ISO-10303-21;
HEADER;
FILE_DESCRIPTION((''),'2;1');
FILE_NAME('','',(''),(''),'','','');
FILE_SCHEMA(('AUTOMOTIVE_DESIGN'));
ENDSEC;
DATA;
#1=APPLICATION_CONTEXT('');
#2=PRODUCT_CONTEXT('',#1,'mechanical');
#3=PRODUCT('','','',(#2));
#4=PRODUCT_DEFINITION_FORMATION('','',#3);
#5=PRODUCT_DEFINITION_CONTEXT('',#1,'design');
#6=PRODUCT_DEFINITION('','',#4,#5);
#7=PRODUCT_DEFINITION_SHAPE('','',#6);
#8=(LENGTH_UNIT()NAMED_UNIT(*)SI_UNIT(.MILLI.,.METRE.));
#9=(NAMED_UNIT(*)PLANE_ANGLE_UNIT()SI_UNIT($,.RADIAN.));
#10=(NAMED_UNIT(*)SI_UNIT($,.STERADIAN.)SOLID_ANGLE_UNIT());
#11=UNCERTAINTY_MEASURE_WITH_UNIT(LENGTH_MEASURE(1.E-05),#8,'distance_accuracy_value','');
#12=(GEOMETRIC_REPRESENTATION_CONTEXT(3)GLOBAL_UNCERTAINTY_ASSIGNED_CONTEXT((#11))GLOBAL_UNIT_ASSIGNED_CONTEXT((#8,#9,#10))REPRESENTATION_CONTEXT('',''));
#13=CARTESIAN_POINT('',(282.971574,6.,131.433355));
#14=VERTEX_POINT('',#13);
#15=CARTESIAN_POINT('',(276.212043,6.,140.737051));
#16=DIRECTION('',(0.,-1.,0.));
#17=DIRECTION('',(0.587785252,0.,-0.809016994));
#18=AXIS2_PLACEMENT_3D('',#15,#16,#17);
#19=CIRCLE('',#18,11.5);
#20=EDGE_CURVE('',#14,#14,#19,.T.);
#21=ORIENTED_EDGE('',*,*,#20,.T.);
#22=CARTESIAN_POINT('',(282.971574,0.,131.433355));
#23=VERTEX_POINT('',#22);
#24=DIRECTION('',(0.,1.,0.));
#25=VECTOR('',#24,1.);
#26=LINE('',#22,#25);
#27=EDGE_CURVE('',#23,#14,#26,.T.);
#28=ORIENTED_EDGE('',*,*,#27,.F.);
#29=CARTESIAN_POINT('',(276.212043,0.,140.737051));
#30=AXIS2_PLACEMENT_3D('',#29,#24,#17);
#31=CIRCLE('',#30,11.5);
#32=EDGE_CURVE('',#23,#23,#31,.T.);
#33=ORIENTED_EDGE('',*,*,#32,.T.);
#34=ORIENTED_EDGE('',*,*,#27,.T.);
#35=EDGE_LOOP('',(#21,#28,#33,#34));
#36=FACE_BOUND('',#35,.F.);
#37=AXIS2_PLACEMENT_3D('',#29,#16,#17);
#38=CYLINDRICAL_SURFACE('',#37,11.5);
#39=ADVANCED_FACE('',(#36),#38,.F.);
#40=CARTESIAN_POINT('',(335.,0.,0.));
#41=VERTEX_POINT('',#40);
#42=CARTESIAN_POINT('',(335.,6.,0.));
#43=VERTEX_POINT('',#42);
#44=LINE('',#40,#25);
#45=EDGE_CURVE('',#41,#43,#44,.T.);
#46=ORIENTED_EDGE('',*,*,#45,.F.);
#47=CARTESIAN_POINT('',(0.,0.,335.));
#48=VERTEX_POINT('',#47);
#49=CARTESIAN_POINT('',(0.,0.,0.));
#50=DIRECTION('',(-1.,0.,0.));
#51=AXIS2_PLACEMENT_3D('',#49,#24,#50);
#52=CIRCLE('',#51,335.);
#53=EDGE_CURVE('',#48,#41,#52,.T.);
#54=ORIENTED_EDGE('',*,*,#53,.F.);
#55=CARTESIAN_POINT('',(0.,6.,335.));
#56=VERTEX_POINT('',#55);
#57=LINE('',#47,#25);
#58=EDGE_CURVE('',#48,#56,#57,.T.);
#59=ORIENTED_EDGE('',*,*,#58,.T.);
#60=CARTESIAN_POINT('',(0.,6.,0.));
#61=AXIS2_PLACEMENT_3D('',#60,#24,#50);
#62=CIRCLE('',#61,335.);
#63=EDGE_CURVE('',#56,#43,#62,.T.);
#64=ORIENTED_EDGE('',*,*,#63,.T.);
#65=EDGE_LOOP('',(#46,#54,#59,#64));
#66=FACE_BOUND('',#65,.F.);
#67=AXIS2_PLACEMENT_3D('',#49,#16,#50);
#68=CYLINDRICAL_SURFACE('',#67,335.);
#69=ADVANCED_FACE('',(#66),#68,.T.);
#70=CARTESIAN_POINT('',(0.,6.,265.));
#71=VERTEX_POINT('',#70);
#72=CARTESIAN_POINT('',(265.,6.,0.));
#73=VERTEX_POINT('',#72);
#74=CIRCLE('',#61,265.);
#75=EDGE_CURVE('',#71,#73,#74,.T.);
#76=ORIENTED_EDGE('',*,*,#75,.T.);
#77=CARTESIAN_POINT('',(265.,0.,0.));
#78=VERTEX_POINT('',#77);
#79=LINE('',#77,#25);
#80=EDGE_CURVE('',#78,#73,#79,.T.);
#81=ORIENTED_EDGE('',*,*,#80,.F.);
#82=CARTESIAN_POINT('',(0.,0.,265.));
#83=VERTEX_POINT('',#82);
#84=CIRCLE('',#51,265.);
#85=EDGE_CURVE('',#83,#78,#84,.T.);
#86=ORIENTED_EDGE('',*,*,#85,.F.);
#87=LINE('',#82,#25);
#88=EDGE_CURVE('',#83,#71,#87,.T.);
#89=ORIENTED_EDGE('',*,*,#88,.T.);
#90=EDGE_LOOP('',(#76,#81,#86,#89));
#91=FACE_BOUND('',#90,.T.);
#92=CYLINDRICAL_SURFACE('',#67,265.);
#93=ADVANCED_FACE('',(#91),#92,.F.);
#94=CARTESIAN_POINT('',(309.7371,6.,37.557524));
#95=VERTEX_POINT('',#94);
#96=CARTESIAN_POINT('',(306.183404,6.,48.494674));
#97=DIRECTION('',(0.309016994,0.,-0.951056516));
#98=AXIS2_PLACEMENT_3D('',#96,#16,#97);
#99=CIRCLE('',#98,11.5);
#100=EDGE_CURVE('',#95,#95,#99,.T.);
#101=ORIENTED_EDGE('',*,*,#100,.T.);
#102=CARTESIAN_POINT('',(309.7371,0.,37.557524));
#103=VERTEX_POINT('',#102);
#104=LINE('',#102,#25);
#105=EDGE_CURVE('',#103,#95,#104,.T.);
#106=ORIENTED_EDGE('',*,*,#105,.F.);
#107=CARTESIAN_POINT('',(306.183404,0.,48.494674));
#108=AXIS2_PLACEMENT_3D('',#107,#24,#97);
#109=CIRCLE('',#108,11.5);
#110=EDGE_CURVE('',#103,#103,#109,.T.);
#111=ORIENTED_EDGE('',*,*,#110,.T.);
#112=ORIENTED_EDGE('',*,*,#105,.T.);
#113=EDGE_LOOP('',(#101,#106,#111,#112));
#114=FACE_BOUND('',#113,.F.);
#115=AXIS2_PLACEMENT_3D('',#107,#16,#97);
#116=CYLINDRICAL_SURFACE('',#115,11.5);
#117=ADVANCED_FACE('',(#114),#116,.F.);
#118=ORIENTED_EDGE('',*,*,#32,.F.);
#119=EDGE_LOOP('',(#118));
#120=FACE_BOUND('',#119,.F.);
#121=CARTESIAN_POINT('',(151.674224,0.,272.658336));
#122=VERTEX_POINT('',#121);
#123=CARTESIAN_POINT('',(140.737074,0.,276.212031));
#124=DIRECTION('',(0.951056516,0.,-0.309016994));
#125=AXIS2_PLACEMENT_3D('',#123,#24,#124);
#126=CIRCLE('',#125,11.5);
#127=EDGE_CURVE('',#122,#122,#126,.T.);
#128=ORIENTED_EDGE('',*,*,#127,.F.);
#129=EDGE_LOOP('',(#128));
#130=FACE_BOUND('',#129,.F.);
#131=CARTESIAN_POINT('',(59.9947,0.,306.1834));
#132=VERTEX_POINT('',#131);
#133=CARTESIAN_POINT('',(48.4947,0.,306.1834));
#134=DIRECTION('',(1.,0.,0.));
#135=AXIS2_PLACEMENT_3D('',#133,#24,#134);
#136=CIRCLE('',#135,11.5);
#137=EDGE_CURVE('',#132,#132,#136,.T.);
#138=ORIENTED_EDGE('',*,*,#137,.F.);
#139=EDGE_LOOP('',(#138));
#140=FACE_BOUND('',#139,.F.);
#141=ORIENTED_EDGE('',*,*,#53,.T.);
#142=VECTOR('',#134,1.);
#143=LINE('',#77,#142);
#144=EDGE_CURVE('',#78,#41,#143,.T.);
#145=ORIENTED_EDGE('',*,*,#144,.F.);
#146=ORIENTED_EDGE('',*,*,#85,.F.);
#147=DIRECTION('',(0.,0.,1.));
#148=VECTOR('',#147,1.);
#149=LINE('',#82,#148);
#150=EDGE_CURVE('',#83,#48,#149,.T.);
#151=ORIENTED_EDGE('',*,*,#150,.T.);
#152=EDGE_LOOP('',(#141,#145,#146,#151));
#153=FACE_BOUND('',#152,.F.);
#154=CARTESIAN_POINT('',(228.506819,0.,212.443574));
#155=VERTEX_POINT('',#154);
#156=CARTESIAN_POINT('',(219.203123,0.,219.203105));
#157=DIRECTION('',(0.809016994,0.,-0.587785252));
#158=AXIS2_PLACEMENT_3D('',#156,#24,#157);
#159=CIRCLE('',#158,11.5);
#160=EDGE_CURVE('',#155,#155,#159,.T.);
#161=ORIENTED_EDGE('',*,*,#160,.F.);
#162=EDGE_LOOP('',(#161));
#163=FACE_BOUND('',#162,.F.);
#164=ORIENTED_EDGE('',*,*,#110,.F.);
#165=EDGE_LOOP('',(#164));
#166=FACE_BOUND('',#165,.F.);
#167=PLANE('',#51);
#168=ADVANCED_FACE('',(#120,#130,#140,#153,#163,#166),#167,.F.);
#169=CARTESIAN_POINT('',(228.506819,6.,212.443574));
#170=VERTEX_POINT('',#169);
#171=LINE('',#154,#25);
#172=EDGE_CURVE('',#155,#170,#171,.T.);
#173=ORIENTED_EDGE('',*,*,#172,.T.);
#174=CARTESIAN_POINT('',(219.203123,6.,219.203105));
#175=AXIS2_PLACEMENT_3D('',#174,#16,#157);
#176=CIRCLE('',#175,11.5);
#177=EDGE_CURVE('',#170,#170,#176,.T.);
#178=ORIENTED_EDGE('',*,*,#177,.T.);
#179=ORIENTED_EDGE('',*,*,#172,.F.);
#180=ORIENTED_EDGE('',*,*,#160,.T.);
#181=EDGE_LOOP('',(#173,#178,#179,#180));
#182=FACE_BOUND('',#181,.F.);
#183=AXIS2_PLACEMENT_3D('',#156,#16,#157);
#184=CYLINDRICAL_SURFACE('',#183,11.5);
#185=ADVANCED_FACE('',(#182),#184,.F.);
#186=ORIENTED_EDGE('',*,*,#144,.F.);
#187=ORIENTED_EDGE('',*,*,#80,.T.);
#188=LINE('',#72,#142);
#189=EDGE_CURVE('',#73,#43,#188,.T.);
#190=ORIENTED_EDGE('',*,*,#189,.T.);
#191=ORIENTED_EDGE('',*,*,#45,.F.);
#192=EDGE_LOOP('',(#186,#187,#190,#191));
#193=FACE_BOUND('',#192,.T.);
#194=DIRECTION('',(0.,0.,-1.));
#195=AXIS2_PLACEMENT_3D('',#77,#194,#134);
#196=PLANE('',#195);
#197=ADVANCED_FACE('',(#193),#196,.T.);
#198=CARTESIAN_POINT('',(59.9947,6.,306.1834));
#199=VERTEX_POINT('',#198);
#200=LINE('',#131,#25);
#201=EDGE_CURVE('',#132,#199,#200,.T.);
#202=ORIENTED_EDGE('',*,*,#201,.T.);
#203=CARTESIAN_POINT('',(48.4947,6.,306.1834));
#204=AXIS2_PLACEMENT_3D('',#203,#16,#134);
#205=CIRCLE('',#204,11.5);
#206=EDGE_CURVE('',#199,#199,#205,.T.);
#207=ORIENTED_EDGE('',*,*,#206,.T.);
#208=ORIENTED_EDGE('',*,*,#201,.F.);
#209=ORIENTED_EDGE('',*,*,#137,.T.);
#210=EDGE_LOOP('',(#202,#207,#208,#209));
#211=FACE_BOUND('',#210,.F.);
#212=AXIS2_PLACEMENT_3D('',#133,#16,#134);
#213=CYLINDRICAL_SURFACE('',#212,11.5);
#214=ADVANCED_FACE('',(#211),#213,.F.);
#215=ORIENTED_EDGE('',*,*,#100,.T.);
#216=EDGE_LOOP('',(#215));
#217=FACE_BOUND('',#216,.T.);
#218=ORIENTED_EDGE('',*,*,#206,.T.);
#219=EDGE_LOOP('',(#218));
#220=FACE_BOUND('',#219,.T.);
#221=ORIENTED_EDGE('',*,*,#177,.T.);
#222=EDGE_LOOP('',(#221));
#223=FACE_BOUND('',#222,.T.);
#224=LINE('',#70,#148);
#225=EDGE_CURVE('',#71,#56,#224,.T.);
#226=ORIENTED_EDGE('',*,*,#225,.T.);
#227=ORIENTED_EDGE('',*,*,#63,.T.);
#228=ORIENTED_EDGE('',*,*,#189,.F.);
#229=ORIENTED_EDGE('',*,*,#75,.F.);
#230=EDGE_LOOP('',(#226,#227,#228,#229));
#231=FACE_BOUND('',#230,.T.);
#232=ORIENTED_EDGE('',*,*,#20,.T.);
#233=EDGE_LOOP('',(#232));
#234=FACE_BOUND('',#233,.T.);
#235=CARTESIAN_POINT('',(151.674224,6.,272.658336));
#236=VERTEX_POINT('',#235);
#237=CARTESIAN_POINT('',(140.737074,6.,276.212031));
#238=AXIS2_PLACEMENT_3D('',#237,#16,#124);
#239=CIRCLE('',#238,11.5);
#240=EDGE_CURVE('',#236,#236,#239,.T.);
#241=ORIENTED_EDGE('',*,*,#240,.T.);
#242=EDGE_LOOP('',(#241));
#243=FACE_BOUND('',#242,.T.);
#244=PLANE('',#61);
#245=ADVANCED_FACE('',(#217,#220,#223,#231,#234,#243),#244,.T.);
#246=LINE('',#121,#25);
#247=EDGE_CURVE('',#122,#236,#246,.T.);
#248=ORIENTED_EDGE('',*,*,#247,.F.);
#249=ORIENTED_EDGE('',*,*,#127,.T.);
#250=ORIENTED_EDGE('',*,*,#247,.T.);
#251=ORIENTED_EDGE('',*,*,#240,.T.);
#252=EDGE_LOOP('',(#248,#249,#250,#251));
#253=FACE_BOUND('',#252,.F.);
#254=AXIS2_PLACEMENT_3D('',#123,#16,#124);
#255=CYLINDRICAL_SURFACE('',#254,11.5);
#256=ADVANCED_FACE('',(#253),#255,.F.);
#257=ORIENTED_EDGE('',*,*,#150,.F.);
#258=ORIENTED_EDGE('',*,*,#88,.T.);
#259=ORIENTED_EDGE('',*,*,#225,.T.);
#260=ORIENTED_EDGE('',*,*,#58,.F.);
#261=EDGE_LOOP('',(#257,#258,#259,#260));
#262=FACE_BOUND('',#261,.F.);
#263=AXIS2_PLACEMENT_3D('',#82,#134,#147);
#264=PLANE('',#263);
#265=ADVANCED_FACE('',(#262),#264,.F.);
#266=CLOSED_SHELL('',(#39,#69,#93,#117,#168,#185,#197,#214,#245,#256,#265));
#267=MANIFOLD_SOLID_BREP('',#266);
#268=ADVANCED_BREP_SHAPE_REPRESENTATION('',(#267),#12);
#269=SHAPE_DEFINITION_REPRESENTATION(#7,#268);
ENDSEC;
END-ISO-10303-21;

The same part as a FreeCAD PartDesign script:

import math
import FreeCAD as App
import Part
import Sketcher

doc = App.newDocument("Part")
body = doc.addObject("PartDesign::Body", "Body")

# Sketch on XZ plane
sketch1 = body.newObject("Sketcher::SketchObject", "Sketch")
sketch1.AttachmentSupport = (doc.getObject("XZ_Plane"), [""])
sketch1.MapMode = "FlatFace"
sketch1.addGeometry([
    Part.ArcOfCircle(Part.Circle(App.Vector(0, 0, 0), App.Vector(0, 0, 1), 265), math.radians(0), math.radians(90)),
    Part.LineSegment(App.Vector(0, 265, 0), App.Vector(0, 335, 0)),
    Part.ArcOfCircle(Part.Circle(App.Vector(0, 0, 0), App.Vector(0, 0, 1), 335), math.radians(0), math.radians(90)),
    Part.LineSegment(App.Vector(335, 0, 0), App.Vector(265, 0, 0)),
], False)
sketch1.addConstraint([
    Sketcher.Constraint("Coincident", 0, 2, 1, 1),
    Sketcher.Constraint("Coincident", 1, 2, 2, 2),
    Sketcher.Constraint("Coincident", 2, 1, 3, 1),
    Sketcher.Constraint("Coincident", 3, 2, 0, 1),
    Sketcher.Constraint("Vertical", 1),
    Sketcher.Constraint("Horizontal", 3),
    Sketcher.Constraint("Coincident", 0, 3, -1, 1),
    Sketcher.Constraint("Coincident", 2, 3, -1, 1),
    Sketcher.Constraint("PointOnObject", 0, 2, -2),
    Sketcher.Constraint("PointOnObject", 2, 1, -1),
    Sketcher.Constraint("Radius", 0, 265.0),
    Sketcher.Constraint("Radius", 2, 335.0),
])
pad1 = body.newObject("PartDesign::Pad", "Pad")
pad1.Profile = sketch1
pad1.Length = 6
pad1.Reversed = True

# Sketch on XZ plane
sketch2 = body.newObject("Sketcher::SketchObject", "Sketch001")
sketch2.AttachmentSupport = (doc.getObject("XZ_Plane"), [""])
sketch2.MapMode = "FlatFace"
sketch2.addGeometry(Part.Circle(App.Vector(48, 306, 0), App.Vector(0, 0, 1), 12), False)
sketch2.addConstraint([
    Sketcher.Constraint("Diameter", 0, 23.0),
    Sketcher.Constraint("DistanceX", -1, 1, 0, 3, 48.4947),
    Sketcher.Constraint("DistanceY", -1, 1, 0, 3, 306.1834),
])
pocket1 = body.newObject("PartDesign::Pocket", "Pocket")
pocket1.Profile = sketch2
pocket1.Length = 8
doc.recompute()

polarpattern = body.newObject("PartDesign::PolarPattern", "PolarPattern")
polarpattern.Originals = [pocket1]
polarpattern.Axis = (doc.getObject("Y_Axis"), [""])
polarpattern.Angle = 360
polarpattern.Occurrences = 20
body.Tip = polarpattern

doc.recompute()
